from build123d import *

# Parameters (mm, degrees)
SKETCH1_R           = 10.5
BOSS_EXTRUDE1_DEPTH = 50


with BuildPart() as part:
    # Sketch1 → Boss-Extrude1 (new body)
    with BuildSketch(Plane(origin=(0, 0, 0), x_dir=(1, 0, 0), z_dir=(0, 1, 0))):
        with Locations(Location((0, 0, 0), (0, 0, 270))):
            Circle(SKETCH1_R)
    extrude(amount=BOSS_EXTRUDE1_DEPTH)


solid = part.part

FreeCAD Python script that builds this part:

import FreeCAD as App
import Part
import Sketcher

doc = App.newDocument("Part")
body = doc.addObject("PartDesign::Body", "Body")

# Sketch on XZ plane
sketch1 = body.newObject("Sketcher::SketchObject", "Sketch")
sketch1.AttachmentSupport = (doc.getObject("XZ_Plane"), [""])
sketch1.MapMode = "FlatFace"
sketch1.addGeometry(Part.Circle(App.Vector(0, 0, 0), App.Vector(0, 0, 1), 10), False)
sketch1.addConstraint(Sketcher.Constraint("Coincident", 0, 3, -1, 1))
sketch1.addConstraint(Sketcher.Constraint("Diameter", 0, 21.0))
pad1 = body.newObject("PartDesign::Pad", "Pad")
pad1.Profile = sketch1
pad1.Length = 50
pad1.Reversed = True

doc.recompute()
